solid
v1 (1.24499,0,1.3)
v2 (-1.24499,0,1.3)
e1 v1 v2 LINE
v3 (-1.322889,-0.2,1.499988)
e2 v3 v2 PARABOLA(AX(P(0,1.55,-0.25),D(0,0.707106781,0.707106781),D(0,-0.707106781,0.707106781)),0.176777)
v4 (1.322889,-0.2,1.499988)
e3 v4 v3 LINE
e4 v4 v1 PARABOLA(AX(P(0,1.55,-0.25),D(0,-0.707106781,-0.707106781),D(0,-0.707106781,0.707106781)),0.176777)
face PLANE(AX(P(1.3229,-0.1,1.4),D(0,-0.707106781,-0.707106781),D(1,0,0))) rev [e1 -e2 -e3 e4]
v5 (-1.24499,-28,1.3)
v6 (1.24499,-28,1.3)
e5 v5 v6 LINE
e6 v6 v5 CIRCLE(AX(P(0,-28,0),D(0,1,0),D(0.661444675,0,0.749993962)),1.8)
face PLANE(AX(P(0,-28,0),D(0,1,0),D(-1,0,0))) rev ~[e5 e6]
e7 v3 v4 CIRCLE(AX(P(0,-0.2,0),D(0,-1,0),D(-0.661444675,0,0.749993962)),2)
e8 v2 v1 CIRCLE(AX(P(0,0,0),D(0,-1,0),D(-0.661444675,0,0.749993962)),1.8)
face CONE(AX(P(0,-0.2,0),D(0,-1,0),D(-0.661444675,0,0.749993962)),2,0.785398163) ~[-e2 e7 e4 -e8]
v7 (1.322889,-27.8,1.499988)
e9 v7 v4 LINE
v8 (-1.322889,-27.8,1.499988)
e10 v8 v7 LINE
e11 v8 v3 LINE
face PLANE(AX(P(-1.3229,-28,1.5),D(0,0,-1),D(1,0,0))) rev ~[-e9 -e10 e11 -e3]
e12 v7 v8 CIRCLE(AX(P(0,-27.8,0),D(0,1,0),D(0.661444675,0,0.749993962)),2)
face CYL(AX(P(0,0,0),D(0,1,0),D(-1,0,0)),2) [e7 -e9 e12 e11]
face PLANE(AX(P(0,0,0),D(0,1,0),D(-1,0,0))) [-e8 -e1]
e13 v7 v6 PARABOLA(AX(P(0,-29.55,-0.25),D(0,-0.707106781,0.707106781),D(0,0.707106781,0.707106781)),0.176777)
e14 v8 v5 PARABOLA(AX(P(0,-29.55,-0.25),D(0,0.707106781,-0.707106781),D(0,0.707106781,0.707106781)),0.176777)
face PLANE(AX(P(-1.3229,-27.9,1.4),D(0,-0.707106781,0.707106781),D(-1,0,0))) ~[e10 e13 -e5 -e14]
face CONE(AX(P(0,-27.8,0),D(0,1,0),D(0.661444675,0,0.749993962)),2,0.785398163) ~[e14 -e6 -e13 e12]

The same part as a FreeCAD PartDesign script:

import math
import FreeCAD as App
import Part
import Sketcher

V = App.Vector


def edges_at(feature, points):
    """Names of the edges that pass closest to the given points."""
    edges = feature.Shape.Edges
    near = lambda p: min(range(len(edges)), key=lambda i: edges[i].distToShape(Part.Vertex(*p))[0])
    return sorted({f"Edge{near(p) + 1}" for p in points})

doc = App.newDocument("Part")
params = doc.addObject("Spreadsheet::Sheet", "Params")
for row, (alias, value) in enumerate([
    ("sketch1_diameter", "4 mm"),
    ("pad1_length", "28 mm"),
    ("sketch2_radius", "2 mm"),
    ("chamfer_size", "0.2 mm"),
], start=1):
    params.set(f"A{row}", alias)
    params.set(f"B{row}", "=" + value)
    params.setAlias(f"B{row}", alias)

body = doc.addObject("PartDesign::Body", "Body")

# Sketch on XZ plane
sketch1 = body.newObject("Sketcher::SketchObject", "Sketch")
sketch1.AttachmentSupport = (doc.getObject("XZ_Plane"), [""])
sketch1.MapMode = "FlatFace"
sketch1.addGeometry(Part.Circle(V(0, 0, 0), V(0, 0, 1), 2), False)
sketch1.addConstraint([
    Sketcher.Constraint("Coincident", 0, 3, -1, 1),
    Sketcher.Constraint("Diameter", 0, 4.0),
])
sketch1.setExpression("Constraints[1]", "Params.sketch1_diameter")
pad1 = body.newObject("PartDesign::Pad", "Pad")
pad1.Profile = sketch1
pad1.setExpression("Length", "Params.pad1_length")

# Sketch on XZ plane
sketch2 = body.newObject("Sketcher::SketchObject", "Sketch001")
sketch2.AttachmentSupport = (doc.getObject("XZ_Plane"), [""])
sketch2.MapMode = "FlatFace"
sketch2.AttachmentOffset = App.Placement(V(0, 0, 28), App.Rotation())
sketch2.addGeometry([
    Part.LineSegment(V(-1.3, 1.5, 0), V(1.3, 1.5, 0)),
    Part.ArcOfCircle(Part.Circle(V(0, 0, 0), V(0, 0, 1), 2), math.radians(49), math.radians(131)),
], False)
sketch2.addConstraint([
    Sketcher.Constraint("Coincident", 0, 1, 1, 2),
    Sketcher.Constraint("Coincident", 1, 1, 0, 2),
    Sketcher.Constraint("Horizontal", 0),
    Sketcher.Constraint("Coincident", 1, 3, -1, 1),
    Sketcher.Constraint("Radius", 1, 2.0),
    Sketcher.Constraint("DistanceY", -1, 1, 0, 1, 1.5),
])
sketch2.setExpression("Constraints[4]", "Params.sketch2_radius")
pocket1 = body.newObject("PartDesign::Pocket", "Pocket")
pocket1.Profile = sketch2
pocket1.Type = "ThroughAll"
doc.recompute()

chamfer = body.newObject("PartDesign::Chamfer", "Chamfer")
chamfer.Base = (pocket1, edges_at(pocket1, [
    (0, -28, -2),
    (0, -28, 1.5),
    (0, 0, -2),
    (0, 0, 1.5),
]))
chamfer.setExpression("Size", "Params.chamfer_size")

doc.recompute()
